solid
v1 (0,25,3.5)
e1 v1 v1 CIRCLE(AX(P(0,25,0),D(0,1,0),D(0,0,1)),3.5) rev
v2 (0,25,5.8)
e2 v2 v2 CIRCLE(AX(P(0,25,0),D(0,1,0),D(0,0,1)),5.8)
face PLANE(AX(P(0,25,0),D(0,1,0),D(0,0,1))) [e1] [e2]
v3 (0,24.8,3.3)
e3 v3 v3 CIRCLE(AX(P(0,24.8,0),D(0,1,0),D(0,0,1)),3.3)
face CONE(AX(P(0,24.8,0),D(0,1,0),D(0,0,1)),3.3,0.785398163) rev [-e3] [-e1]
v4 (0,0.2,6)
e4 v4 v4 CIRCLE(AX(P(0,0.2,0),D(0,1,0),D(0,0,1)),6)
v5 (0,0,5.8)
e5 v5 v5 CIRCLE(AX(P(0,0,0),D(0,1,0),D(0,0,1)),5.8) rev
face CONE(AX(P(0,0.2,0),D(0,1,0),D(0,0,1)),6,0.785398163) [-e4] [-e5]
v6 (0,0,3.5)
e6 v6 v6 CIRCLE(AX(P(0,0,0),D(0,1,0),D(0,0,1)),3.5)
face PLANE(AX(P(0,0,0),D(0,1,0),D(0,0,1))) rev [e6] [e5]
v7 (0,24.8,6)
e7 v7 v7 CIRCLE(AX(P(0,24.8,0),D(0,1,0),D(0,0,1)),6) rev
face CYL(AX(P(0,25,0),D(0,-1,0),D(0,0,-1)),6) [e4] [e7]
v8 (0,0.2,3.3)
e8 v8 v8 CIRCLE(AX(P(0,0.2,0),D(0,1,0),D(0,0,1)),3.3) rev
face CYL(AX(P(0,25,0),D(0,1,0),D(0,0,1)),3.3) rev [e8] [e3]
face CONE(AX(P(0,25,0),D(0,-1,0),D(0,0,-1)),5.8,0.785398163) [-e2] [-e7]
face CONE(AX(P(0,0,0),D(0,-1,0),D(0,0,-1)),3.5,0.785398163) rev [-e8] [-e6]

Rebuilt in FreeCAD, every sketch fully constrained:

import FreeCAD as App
import Part
import Sketcher

V = App.Vector
Q = App.Units.Quantity


def edges_at(feature, points):
    """Names of the edges that pass closest to the given points."""
    edges = feature.Shape.Edges
    near = lambda p: min(range(len(edges)), key=lambda i: edges[i].distToShape(Part.Vertex(*p))[0])
    return sorted({f"Edge{near(p) + 1}" for p in points})

doc = App.newDocument("Part")
body = doc.addObject("PartDesign::Body", "Body")

sketch1 = doc.addObject("Sketcher::SketchObject", "Sketch")
body.addObject(sketch1)
sketch1.AttachmentSupport = (doc.XZ_Plane, [""])
sketch1.MapMode = "FlatFace"
sketch1.addGeometry(Part.Circle(V(0, 0, 0), V(0, 0, 1), 6), False)
sketch1.addConstraint([
    Sketcher.Constraint("Coincident", 0, 3, -1, 1),
    Sketcher.Constraint("Diameter", 0, Q("12 mm")),
])
pad1 = doc.addObject("PartDesign::Pad", "Pad")
body.addObject(pad1)
pad1.Profile = sketch1
pad1.Length = 25
pad1.Reversed = True

sketch2 = doc.addObject("Sketcher::SketchObject", "Sketch001")
body.addObject(sketch2)
sketch2.AttachmentSupport = (doc.XZ_Plane, [""])
sketch2.MapMode = "FlatFace"
sketch2.AttachmentOffset = App.Placement(V(0, 0, -25), App.Rotation())
sketch2.addGeometry(Part.Circle(V(0, 0, 0), V(0, 0, 1), 3.3), False)
sketch2.addConstraint([
    Sketcher.Constraint("Coincident", 0, 3, -1, 1),
    Sketcher.Constraint("Diameter", 0, Q("6.6 mm")),
])
doc.recompute()
hole = doc.addObject("PartDesign::Hole", "Hole")
body.addObject(hole)
hole.Profile = sketch2
hole.ThreadType = "None"
hole.Diameter = 6.6
hole.DepthType = "ThroughAll"
hole.Reversed = True
doc.recompute()

chamfer = doc.addObject("PartDesign::Chamfer", "Chamfer")
body.addObject(chamfer)
chamfer.Base = (hole, edges_at(hole, [
    (-6, 0, 0),
    (-6, 25, 0),
    (3.3, 25, 0),
    (3.3, 0, 0),
]))
chamfer.Size = 0.2

doc.recompute()
